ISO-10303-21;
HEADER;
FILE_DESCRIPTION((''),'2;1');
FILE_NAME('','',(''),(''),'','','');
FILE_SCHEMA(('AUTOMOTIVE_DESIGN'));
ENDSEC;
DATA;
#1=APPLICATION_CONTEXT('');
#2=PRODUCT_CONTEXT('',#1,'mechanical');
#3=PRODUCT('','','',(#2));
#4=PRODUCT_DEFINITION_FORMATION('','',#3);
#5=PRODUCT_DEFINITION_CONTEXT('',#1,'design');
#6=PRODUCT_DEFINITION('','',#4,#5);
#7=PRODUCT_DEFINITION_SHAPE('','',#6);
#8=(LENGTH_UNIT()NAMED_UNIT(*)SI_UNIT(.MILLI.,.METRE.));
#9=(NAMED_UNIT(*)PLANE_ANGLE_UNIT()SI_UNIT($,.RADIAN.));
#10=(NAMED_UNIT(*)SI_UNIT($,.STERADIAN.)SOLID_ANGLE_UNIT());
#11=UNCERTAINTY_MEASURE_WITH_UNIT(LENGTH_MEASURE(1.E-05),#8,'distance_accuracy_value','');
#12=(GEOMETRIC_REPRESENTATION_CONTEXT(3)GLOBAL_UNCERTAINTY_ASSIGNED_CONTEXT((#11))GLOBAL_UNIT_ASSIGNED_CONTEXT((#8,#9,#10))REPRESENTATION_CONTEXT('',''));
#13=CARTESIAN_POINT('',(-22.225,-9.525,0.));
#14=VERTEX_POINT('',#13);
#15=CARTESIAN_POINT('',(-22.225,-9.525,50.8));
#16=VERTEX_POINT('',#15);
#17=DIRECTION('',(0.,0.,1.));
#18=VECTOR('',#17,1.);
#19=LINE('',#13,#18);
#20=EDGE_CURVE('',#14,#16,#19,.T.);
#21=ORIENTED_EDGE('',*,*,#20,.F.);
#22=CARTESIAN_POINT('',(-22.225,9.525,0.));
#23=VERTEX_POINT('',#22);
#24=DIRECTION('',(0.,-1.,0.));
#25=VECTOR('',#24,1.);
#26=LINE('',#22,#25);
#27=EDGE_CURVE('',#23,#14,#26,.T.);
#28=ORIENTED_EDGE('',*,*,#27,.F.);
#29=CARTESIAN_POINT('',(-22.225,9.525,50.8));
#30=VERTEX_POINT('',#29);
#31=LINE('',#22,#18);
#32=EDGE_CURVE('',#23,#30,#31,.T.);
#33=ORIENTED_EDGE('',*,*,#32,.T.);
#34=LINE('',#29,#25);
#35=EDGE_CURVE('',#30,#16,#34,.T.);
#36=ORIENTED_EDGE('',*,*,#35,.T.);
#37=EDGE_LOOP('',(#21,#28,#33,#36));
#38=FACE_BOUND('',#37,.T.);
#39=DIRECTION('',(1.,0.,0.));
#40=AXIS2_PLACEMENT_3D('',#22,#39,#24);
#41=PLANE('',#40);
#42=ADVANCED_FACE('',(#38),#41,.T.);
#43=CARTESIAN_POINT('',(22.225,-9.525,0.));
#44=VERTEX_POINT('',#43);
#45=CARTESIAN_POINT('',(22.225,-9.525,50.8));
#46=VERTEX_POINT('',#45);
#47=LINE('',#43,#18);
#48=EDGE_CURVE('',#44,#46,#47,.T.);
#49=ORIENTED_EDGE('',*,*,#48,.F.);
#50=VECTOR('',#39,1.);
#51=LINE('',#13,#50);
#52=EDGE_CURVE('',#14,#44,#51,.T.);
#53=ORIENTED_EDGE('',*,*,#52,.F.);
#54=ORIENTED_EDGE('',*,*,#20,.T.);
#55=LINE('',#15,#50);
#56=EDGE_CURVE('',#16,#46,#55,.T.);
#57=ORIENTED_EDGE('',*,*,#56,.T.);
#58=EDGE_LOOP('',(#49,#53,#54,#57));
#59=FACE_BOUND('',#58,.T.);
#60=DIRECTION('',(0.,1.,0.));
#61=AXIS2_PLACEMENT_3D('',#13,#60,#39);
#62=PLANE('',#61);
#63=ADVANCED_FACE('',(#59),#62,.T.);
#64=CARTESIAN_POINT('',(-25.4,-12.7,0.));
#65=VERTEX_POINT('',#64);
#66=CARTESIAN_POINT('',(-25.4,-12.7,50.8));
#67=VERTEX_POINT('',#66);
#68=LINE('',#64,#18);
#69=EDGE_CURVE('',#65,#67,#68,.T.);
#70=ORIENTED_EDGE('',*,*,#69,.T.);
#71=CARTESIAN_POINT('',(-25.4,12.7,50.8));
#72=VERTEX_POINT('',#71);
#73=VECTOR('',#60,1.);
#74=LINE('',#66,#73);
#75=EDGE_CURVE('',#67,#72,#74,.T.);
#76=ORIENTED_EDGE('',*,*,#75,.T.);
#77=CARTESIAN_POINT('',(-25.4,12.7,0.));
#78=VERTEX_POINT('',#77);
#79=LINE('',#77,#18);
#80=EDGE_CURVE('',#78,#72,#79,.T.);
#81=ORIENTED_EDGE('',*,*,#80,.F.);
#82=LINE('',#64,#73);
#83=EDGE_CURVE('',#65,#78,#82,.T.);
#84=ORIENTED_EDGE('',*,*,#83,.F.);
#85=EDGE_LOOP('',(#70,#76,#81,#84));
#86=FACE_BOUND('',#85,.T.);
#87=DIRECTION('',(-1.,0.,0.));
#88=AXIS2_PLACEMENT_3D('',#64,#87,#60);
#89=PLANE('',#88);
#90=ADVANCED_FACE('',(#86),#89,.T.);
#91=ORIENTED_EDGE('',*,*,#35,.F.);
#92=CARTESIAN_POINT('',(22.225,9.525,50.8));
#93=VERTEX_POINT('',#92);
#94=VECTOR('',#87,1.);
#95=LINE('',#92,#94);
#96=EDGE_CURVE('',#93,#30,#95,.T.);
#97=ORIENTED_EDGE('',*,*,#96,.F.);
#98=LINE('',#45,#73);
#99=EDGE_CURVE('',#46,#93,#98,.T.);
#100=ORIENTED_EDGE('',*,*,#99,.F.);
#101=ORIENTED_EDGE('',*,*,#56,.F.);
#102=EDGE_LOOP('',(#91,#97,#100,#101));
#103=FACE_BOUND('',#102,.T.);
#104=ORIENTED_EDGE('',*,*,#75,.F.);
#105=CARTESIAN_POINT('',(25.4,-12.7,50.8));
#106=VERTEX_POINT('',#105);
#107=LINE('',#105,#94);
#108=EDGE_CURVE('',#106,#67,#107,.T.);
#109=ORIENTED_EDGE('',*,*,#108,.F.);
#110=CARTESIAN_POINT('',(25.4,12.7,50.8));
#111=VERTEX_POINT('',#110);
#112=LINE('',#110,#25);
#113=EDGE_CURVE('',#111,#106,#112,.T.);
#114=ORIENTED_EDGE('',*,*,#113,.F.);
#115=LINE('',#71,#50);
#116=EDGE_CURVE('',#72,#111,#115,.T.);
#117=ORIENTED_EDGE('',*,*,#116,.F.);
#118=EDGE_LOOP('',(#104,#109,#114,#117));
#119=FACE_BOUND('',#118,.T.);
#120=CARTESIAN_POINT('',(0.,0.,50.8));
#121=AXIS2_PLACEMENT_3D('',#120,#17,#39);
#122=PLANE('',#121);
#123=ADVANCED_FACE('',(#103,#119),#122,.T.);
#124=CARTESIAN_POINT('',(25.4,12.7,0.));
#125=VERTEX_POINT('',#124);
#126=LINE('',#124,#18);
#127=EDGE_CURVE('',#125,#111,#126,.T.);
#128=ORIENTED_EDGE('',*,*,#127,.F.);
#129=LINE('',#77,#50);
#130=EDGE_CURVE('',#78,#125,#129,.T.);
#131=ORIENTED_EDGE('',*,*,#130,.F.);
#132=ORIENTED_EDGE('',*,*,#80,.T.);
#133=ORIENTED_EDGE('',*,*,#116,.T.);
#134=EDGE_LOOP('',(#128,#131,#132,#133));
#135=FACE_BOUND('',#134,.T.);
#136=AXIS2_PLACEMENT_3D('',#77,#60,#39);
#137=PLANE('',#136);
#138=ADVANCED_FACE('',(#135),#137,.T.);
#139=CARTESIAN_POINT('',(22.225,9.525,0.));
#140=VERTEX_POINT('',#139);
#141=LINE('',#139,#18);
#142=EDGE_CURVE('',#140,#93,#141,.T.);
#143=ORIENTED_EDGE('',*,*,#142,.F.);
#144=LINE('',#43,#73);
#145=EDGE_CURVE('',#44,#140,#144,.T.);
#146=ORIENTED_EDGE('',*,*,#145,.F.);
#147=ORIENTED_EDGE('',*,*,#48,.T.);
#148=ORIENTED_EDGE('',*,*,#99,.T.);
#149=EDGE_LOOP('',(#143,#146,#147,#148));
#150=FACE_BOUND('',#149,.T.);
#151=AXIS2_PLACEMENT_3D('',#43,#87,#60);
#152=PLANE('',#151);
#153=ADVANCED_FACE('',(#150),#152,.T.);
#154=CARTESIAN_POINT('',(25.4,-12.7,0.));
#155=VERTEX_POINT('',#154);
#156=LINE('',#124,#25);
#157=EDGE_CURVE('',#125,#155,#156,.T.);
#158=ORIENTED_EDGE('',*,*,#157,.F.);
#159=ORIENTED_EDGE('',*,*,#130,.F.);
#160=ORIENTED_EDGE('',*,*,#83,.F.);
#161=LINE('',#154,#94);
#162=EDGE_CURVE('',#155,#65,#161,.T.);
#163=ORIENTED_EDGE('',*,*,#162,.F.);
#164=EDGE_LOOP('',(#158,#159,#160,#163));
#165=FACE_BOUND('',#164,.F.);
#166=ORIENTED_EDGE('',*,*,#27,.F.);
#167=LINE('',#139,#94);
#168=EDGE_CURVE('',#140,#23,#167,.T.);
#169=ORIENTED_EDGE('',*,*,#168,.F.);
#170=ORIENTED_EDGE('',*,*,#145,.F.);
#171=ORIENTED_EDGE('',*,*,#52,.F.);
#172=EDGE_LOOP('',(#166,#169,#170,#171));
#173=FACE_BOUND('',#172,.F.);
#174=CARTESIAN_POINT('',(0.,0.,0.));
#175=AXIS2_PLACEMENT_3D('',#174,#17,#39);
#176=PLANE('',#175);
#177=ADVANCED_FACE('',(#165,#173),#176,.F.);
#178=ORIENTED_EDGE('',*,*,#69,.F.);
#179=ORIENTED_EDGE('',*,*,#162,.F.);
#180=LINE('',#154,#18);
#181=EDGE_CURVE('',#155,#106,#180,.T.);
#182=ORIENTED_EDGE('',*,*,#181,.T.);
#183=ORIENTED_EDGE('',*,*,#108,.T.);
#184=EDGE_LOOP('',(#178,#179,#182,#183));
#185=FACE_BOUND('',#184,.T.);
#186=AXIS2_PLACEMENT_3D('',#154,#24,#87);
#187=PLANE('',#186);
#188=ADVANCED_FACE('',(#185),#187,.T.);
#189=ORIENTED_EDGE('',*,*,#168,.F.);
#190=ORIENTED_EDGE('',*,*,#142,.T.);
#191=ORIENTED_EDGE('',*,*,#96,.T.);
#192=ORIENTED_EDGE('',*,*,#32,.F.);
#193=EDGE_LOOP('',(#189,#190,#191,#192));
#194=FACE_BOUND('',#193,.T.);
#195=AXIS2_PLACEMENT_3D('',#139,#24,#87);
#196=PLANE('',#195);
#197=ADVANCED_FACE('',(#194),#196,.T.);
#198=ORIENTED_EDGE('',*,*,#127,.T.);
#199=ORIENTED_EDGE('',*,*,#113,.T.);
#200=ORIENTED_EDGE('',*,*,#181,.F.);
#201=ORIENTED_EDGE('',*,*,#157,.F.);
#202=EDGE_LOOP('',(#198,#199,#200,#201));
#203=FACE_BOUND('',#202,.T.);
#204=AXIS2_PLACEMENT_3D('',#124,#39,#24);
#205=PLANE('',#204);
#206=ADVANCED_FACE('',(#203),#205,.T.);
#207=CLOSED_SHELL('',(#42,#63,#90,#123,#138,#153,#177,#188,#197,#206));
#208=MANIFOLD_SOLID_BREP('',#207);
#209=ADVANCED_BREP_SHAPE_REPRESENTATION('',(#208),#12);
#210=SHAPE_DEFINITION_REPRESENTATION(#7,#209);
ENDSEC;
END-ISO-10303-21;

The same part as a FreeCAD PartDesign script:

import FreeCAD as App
import Part
import Sketcher
from FreeCAD import Vector
Q = App.Units.Quantity

doc = App.newDocument("Part")
body = doc.addObject("PartDesign::Body", "Body")

# Sketch on XY plane
sketch1 = body.newObject("Sketcher::SketchObject", "Sketch")
sketch1.AttachmentSupport = (doc.getObject("XY_Plane"), [""])
sketch1.MapMode = "FlatFace"
sketch1.addGeometry(Part.LineSegment(Vector(25, 13, 0), Vector(-25, 13, 0)), False)
sketch1.addGeometry(Part.LineSegment(Vector(-25, 13, 0), Vector(-25, -13, 0)), False)
sketch1.addGeometry(Part.LineSegment(Vector(-25, -13, 0), Vector(25, -13, 0)), False)
sketch1.addGeometry(Part.LineSegment(Vector(25, -13, 0), Vector(25, 13, 0)), False)
sketch1.addGeometry(Part.LineSegment(Vector(-22, 10, 0), Vector(22, 10, 0)), False)
sketch1.addGeometry(Part.LineSegment(Vector(22, 10, 0), Vector(22, -10, 0)), False)
sketch1.addGeometry(Part.LineSegment(Vector(22, -10, 0), Vector(-22, -10, 0)), False)
sketch1.addGeometry(Part.LineSegment(Vector(-22, -10, 0), Vector(-22, 10, 0)), False)
sketch1.addConstraint(Sketcher.Constraint("Coincident", 0, 2, 1, 1))
sketch1.addConstraint(Sketcher.Constraint("Coincident", 1, 2, 2, 1))
sketch1.addConstraint(Sketcher.Constraint("Coincident", 2, 2, 3, 1))
sketch1.addConstraint(Sketcher.Constraint("Coincident", 3, 2, 0, 1))
sketch1.addConstraint(Sketcher.Constraint("Coincident", 4, 2, 5, 1))
sketch1.addConstraint(Sketcher.Constraint("Coincident", 5, 2, 6, 1))
sketch1.addConstraint(Sketcher.Constraint("Coincident", 6, 2, 7, 1))
sketch1.addConstraint(Sketcher.Constraint("Coincident", 7, 2, 4, 1))
sketch1.addConstraint(Sketcher.Constraint("Horizontal", 0))
sketch1.addConstraint(Sketcher.Constraint("Vertical", 1))
sketch1.addConstraint(Sketcher.Constraint("Horizontal", 2))
sketch1.addConstraint(Sketcher.Constraint("Vertical", 3))
sketch1.addConstraint(Sketcher.Constraint("Horizontal", 4))
sketch1.addConstraint(Sketcher.Constraint("Vertical", 5))
sketch1.addConstraint(Sketcher.Constraint("Horizontal", 6))
sketch1.addConstraint(Sketcher.Constraint("Vertical", 7))
sketch1.addConstraint(Sketcher.Constraint("Symmetric", 0, 2, 2, 2, -1, 1))
sketch1.addConstraint(Sketcher.Constraint("Symmetric", 4, 2, 6, 2, -1, 1))
sketch1.addConstraint(Sketcher.Constraint("DistanceX", 0, 2, 0, 1, Q("2 in")))
sketch1.addConstraint(Sketcher.Constraint("DistanceY", 1, 2, 1, 1, Q("1 in")))
sketch1.addConstraint(Sketcher.Constraint("DistanceX", 4, 2, 3, 2, Q("0.125 in")))
sketch1.addConstraint(Sketcher.Constraint("DistanceY", 4, 2, 3, 2, Q("0.125 in")))
pad1 = body.newObject("PartDesign::Pad", "Pad")
pad1.Profile = sketch1
pad1.Length = Q("2 in")

doc.recompute()
